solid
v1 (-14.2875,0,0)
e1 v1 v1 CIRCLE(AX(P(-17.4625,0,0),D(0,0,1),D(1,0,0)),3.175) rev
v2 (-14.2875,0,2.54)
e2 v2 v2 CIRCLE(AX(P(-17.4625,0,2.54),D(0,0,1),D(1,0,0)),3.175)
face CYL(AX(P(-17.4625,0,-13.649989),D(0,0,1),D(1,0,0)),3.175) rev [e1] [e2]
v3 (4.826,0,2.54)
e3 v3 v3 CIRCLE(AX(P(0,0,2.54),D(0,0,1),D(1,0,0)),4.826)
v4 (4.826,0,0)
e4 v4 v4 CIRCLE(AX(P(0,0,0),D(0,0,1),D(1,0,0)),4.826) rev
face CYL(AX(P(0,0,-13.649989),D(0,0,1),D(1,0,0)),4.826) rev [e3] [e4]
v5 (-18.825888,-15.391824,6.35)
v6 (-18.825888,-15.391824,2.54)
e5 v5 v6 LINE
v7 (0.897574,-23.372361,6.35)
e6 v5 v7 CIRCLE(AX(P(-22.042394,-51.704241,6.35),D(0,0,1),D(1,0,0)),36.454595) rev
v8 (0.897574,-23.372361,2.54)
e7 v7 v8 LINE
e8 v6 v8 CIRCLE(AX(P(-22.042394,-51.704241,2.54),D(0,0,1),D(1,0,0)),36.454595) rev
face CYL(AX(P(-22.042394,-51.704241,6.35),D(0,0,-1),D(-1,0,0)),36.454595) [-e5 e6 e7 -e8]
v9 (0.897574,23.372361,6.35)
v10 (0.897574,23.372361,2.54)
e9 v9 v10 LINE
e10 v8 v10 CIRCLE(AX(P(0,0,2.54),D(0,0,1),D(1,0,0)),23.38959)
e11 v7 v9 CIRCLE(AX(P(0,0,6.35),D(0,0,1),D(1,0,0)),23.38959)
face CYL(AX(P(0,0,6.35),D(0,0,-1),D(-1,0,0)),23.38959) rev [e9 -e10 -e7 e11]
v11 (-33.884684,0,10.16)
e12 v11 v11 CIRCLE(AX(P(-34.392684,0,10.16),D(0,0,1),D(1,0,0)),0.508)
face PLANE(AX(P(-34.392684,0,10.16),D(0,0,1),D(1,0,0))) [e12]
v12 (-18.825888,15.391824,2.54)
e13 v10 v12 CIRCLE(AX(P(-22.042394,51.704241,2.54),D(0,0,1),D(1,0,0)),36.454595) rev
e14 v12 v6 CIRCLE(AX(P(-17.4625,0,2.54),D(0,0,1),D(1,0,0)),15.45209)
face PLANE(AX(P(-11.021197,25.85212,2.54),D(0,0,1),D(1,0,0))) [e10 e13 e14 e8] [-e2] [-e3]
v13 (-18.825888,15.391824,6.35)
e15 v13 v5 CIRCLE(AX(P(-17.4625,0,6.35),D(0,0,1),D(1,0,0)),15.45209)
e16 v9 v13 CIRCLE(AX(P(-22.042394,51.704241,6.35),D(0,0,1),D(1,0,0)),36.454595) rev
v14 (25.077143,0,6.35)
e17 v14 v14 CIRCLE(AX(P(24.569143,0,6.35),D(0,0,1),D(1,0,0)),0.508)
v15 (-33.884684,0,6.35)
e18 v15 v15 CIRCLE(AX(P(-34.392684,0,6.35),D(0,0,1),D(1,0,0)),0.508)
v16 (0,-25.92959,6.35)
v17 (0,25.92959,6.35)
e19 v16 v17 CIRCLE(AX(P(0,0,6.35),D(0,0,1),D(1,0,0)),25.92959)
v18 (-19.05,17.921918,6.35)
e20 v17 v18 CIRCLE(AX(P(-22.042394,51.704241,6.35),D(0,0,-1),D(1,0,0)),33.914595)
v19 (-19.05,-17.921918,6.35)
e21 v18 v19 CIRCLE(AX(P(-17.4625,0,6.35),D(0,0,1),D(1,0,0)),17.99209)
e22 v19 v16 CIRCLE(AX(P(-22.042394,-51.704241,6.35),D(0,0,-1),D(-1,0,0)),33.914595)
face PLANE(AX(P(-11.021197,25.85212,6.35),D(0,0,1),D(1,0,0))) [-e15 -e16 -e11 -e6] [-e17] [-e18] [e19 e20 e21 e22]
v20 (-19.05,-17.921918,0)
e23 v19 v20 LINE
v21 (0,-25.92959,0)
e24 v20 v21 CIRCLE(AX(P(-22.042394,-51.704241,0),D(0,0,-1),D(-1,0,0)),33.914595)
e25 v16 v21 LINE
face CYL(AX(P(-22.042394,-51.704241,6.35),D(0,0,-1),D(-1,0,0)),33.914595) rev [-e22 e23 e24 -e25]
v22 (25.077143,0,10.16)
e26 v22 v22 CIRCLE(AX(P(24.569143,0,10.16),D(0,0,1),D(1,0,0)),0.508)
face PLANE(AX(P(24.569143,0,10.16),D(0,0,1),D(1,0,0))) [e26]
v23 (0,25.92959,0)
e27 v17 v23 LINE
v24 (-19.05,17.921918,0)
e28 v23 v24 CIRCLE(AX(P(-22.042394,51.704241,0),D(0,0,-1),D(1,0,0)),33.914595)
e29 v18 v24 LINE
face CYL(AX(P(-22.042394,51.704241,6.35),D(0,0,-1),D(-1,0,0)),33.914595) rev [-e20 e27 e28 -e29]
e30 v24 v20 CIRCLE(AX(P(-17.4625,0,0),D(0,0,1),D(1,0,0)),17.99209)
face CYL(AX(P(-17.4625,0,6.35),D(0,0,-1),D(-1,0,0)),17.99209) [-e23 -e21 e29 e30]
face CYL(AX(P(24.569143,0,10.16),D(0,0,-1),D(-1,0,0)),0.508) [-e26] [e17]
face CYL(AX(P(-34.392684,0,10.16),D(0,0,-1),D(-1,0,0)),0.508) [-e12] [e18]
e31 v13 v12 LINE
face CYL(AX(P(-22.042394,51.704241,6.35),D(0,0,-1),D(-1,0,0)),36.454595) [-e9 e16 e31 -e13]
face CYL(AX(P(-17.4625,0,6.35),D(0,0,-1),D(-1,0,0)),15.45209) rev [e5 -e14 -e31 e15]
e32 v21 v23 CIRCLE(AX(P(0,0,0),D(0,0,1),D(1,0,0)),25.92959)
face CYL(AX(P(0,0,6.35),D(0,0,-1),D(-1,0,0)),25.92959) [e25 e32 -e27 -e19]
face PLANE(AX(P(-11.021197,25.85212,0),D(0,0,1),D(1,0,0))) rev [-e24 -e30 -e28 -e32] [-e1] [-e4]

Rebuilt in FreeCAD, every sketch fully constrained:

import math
import FreeCAD as App
import Part
import Sketcher

V = App.Vector
Q = App.Units.Quantity


def faces_at(feature, points):
    """Names of the faces that lie closest to the given points."""
    faces = feature.Shape.Faces
    near = lambda p: min(range(len(faces)), key=lambda i: faces[i].distToShape(Part.Vertex(*p))[0])
    return sorted({f"Face{near(p) + 1}" for p in points})

doc = App.newDocument("Part")
body = doc.addObject("PartDesign::Body", "Body")

sketch1 = body.newObject("Sketcher::SketchObject", "Sketch")
sketch1.AttachmentSupport = (doc.getObject("XY_Plane"), [""])
sketch1.MapMode = "FlatFace"
sketch1.addGeometry(Part.ArcOfCircle(Part.Circle(V(0, 0, 0), V(0, 0, 1), 25.92959), math.radians(-90), math.radians(90)), False)
sketch1.addGeometry(Part.ArcOfCircle(Part.Circle(V(-22.042394, 51.704241, 0), V(0, 0, 1), 33.914595), math.radians(-84.938026), math.radians(-49.463051)), False)
sketch1.addGeometry(Part.ArcOfCircle(Part.Circle(V(-17.4625, 0, 0), V(0, 0, 1), 17.99209), math.radians(95.061974), math.radians(264.938026)), False)
sketch1.addGeometry(Part.ArcOfCircle(Part.Circle(V(-22.042394, -51.704241, 0), V(0, 0, 1), 33.914595), math.radians(49.463051), math.radians(84.938026)), False)
sketch1.addConstraint(Sketcher.Constraint("Coincident", 0, 2, 1, 2))
sketch1.addConstraint(Sketcher.Constraint("Tangent", 1, 1, 2, 1))
sketch1.addConstraint(Sketcher.Constraint("Tangent", 2, 2, 3, 2))
sketch1.addConstraint(Sketcher.Constraint("Coincident", 3, 1, 0, 1))
sketch1.addConstraint(Sketcher.Constraint("Coincident", 0, 3, -1, 1))
sketch1.addConstraint(Sketcher.Constraint("Equal", 1, 3))
sketch1.addConstraint(Sketcher.Constraint("Symmetric", 1, 3, 3, 3, -1))
sketch1.addConstraint(Sketcher.Constraint("PointOnObject", 0, 2, -2))
sketch1.addConstraint(Sketcher.Constraint("DistanceX", 1, 1, -1, 1, Q("0.75 in")))
sketch1.addConstraint(Sketcher.Constraint("DistanceX", 2, 3, -1, 1, Q("0.6875 in")))
sketch1.addConstraint(Sketcher.Constraint("Radius", 0, Q("25.92959 mm")))
sketch1.addConstraint(Sketcher.Constraint("Radius", 2, Q("17.99209 mm")))
pad1 = body.newObject("PartDesign::Pad", "Pad")
pad1.Profile = sketch1
pad1.Length = Q("0.25 in")
doc.recompute()

thickness = body.newObject("PartDesign::Thickness", "Thickness")
thickness.Base = (pad1, faces_at(pad1, [(-4.763, 0, 6.35)]))
thickness.Value = Q("0.1 in")
thickness.Reversed = True
thickness.Join = "Intersection"

sketch2 = body.newObject("Sketcher::SketchObject", "Sketch001")
sketch2.AttachmentSupport = (doc.getObject("XY_Plane"), [""])
sketch2.MapMode = "FlatFace"
sketch2.AttachmentOffset = App.Placement(V(0, 0, 0.25 * 25.4), App.Rotation())
sketch2.addGeometry(Part.Circle(V(-34.392684, 0, 0), V(0, 0, 1), 0.508), False)
sketch2.addGeometry(Part.Circle(V(24.569143, 0, 0), V(0, 0, 1), 0.508), False)
sketch2.addConstraint(Sketcher.Constraint("Equal", 0, 1))
sketch2.addConstraint(Sketcher.Constraint("PointOnObject", 0, 3, -1))
sketch2.addConstraint(Sketcher.Constraint("PointOnObject", 1, 3, -1))
sketch2.addConstraint(Sketcher.Constraint("Diameter", 0, Q("0.04 in")))
sketch2.addConstraint(Sketcher.Constraint("DistanceX", 0, 3, -1, 1, Q("34.392684 mm")))
sketch2.addConstraint(Sketcher.Constraint("DistanceX", -1, 1, 1, 3, Q("24.569143 mm")))
pad2 = body.newObject("PartDesign::Pad", "Pad001")
pad2.Profile = sketch2
pad2.Length = Q("0.15 in")

sketch3 = body.newObject("Sketcher::SketchObject", "Sketch002")
sketch3.AttachmentSupport = (doc.getObject("XY_Plane"), [""])
sketch3.MapMode = "FlatFace"
sketch3.AttachmentOffset = App.Placement(V(0, 0, 0.1 * 25.4), App.Rotation())
sketch3.addGeometry(Part.Circle(V(0, 0, 0), V(0, 0, 1), 4.826), False)
sketch3.addGeometry(Part.Circle(V(-17.4625, 0, 0), V(0, 0, 1), 3.175), False)
sketch3.addConstraint(Sketcher.Constraint("Coincident", 0, 3, -1, 1))
sketch3.addConstraint(Sketcher.Constraint("PointOnObject", 1, 3, -1))
sketch3.addConstraint(Sketcher.Constraint("Diameter", 0, Q("0.38 in")))
sketch3.addConstraint(Sketcher.Constraint("Diameter", 1, Q("0.25 in")))
sketch3.addConstraint(Sketcher.Constraint("DistanceX", 1, 3, -1, 1, Q("0.6875 in")))
pocket1 = body.newObject("PartDesign::Pocket", "Pocket")
pocket1.Profile = sketch3
pocket1.Length = Q("0.1 in")

doc.recompute()
